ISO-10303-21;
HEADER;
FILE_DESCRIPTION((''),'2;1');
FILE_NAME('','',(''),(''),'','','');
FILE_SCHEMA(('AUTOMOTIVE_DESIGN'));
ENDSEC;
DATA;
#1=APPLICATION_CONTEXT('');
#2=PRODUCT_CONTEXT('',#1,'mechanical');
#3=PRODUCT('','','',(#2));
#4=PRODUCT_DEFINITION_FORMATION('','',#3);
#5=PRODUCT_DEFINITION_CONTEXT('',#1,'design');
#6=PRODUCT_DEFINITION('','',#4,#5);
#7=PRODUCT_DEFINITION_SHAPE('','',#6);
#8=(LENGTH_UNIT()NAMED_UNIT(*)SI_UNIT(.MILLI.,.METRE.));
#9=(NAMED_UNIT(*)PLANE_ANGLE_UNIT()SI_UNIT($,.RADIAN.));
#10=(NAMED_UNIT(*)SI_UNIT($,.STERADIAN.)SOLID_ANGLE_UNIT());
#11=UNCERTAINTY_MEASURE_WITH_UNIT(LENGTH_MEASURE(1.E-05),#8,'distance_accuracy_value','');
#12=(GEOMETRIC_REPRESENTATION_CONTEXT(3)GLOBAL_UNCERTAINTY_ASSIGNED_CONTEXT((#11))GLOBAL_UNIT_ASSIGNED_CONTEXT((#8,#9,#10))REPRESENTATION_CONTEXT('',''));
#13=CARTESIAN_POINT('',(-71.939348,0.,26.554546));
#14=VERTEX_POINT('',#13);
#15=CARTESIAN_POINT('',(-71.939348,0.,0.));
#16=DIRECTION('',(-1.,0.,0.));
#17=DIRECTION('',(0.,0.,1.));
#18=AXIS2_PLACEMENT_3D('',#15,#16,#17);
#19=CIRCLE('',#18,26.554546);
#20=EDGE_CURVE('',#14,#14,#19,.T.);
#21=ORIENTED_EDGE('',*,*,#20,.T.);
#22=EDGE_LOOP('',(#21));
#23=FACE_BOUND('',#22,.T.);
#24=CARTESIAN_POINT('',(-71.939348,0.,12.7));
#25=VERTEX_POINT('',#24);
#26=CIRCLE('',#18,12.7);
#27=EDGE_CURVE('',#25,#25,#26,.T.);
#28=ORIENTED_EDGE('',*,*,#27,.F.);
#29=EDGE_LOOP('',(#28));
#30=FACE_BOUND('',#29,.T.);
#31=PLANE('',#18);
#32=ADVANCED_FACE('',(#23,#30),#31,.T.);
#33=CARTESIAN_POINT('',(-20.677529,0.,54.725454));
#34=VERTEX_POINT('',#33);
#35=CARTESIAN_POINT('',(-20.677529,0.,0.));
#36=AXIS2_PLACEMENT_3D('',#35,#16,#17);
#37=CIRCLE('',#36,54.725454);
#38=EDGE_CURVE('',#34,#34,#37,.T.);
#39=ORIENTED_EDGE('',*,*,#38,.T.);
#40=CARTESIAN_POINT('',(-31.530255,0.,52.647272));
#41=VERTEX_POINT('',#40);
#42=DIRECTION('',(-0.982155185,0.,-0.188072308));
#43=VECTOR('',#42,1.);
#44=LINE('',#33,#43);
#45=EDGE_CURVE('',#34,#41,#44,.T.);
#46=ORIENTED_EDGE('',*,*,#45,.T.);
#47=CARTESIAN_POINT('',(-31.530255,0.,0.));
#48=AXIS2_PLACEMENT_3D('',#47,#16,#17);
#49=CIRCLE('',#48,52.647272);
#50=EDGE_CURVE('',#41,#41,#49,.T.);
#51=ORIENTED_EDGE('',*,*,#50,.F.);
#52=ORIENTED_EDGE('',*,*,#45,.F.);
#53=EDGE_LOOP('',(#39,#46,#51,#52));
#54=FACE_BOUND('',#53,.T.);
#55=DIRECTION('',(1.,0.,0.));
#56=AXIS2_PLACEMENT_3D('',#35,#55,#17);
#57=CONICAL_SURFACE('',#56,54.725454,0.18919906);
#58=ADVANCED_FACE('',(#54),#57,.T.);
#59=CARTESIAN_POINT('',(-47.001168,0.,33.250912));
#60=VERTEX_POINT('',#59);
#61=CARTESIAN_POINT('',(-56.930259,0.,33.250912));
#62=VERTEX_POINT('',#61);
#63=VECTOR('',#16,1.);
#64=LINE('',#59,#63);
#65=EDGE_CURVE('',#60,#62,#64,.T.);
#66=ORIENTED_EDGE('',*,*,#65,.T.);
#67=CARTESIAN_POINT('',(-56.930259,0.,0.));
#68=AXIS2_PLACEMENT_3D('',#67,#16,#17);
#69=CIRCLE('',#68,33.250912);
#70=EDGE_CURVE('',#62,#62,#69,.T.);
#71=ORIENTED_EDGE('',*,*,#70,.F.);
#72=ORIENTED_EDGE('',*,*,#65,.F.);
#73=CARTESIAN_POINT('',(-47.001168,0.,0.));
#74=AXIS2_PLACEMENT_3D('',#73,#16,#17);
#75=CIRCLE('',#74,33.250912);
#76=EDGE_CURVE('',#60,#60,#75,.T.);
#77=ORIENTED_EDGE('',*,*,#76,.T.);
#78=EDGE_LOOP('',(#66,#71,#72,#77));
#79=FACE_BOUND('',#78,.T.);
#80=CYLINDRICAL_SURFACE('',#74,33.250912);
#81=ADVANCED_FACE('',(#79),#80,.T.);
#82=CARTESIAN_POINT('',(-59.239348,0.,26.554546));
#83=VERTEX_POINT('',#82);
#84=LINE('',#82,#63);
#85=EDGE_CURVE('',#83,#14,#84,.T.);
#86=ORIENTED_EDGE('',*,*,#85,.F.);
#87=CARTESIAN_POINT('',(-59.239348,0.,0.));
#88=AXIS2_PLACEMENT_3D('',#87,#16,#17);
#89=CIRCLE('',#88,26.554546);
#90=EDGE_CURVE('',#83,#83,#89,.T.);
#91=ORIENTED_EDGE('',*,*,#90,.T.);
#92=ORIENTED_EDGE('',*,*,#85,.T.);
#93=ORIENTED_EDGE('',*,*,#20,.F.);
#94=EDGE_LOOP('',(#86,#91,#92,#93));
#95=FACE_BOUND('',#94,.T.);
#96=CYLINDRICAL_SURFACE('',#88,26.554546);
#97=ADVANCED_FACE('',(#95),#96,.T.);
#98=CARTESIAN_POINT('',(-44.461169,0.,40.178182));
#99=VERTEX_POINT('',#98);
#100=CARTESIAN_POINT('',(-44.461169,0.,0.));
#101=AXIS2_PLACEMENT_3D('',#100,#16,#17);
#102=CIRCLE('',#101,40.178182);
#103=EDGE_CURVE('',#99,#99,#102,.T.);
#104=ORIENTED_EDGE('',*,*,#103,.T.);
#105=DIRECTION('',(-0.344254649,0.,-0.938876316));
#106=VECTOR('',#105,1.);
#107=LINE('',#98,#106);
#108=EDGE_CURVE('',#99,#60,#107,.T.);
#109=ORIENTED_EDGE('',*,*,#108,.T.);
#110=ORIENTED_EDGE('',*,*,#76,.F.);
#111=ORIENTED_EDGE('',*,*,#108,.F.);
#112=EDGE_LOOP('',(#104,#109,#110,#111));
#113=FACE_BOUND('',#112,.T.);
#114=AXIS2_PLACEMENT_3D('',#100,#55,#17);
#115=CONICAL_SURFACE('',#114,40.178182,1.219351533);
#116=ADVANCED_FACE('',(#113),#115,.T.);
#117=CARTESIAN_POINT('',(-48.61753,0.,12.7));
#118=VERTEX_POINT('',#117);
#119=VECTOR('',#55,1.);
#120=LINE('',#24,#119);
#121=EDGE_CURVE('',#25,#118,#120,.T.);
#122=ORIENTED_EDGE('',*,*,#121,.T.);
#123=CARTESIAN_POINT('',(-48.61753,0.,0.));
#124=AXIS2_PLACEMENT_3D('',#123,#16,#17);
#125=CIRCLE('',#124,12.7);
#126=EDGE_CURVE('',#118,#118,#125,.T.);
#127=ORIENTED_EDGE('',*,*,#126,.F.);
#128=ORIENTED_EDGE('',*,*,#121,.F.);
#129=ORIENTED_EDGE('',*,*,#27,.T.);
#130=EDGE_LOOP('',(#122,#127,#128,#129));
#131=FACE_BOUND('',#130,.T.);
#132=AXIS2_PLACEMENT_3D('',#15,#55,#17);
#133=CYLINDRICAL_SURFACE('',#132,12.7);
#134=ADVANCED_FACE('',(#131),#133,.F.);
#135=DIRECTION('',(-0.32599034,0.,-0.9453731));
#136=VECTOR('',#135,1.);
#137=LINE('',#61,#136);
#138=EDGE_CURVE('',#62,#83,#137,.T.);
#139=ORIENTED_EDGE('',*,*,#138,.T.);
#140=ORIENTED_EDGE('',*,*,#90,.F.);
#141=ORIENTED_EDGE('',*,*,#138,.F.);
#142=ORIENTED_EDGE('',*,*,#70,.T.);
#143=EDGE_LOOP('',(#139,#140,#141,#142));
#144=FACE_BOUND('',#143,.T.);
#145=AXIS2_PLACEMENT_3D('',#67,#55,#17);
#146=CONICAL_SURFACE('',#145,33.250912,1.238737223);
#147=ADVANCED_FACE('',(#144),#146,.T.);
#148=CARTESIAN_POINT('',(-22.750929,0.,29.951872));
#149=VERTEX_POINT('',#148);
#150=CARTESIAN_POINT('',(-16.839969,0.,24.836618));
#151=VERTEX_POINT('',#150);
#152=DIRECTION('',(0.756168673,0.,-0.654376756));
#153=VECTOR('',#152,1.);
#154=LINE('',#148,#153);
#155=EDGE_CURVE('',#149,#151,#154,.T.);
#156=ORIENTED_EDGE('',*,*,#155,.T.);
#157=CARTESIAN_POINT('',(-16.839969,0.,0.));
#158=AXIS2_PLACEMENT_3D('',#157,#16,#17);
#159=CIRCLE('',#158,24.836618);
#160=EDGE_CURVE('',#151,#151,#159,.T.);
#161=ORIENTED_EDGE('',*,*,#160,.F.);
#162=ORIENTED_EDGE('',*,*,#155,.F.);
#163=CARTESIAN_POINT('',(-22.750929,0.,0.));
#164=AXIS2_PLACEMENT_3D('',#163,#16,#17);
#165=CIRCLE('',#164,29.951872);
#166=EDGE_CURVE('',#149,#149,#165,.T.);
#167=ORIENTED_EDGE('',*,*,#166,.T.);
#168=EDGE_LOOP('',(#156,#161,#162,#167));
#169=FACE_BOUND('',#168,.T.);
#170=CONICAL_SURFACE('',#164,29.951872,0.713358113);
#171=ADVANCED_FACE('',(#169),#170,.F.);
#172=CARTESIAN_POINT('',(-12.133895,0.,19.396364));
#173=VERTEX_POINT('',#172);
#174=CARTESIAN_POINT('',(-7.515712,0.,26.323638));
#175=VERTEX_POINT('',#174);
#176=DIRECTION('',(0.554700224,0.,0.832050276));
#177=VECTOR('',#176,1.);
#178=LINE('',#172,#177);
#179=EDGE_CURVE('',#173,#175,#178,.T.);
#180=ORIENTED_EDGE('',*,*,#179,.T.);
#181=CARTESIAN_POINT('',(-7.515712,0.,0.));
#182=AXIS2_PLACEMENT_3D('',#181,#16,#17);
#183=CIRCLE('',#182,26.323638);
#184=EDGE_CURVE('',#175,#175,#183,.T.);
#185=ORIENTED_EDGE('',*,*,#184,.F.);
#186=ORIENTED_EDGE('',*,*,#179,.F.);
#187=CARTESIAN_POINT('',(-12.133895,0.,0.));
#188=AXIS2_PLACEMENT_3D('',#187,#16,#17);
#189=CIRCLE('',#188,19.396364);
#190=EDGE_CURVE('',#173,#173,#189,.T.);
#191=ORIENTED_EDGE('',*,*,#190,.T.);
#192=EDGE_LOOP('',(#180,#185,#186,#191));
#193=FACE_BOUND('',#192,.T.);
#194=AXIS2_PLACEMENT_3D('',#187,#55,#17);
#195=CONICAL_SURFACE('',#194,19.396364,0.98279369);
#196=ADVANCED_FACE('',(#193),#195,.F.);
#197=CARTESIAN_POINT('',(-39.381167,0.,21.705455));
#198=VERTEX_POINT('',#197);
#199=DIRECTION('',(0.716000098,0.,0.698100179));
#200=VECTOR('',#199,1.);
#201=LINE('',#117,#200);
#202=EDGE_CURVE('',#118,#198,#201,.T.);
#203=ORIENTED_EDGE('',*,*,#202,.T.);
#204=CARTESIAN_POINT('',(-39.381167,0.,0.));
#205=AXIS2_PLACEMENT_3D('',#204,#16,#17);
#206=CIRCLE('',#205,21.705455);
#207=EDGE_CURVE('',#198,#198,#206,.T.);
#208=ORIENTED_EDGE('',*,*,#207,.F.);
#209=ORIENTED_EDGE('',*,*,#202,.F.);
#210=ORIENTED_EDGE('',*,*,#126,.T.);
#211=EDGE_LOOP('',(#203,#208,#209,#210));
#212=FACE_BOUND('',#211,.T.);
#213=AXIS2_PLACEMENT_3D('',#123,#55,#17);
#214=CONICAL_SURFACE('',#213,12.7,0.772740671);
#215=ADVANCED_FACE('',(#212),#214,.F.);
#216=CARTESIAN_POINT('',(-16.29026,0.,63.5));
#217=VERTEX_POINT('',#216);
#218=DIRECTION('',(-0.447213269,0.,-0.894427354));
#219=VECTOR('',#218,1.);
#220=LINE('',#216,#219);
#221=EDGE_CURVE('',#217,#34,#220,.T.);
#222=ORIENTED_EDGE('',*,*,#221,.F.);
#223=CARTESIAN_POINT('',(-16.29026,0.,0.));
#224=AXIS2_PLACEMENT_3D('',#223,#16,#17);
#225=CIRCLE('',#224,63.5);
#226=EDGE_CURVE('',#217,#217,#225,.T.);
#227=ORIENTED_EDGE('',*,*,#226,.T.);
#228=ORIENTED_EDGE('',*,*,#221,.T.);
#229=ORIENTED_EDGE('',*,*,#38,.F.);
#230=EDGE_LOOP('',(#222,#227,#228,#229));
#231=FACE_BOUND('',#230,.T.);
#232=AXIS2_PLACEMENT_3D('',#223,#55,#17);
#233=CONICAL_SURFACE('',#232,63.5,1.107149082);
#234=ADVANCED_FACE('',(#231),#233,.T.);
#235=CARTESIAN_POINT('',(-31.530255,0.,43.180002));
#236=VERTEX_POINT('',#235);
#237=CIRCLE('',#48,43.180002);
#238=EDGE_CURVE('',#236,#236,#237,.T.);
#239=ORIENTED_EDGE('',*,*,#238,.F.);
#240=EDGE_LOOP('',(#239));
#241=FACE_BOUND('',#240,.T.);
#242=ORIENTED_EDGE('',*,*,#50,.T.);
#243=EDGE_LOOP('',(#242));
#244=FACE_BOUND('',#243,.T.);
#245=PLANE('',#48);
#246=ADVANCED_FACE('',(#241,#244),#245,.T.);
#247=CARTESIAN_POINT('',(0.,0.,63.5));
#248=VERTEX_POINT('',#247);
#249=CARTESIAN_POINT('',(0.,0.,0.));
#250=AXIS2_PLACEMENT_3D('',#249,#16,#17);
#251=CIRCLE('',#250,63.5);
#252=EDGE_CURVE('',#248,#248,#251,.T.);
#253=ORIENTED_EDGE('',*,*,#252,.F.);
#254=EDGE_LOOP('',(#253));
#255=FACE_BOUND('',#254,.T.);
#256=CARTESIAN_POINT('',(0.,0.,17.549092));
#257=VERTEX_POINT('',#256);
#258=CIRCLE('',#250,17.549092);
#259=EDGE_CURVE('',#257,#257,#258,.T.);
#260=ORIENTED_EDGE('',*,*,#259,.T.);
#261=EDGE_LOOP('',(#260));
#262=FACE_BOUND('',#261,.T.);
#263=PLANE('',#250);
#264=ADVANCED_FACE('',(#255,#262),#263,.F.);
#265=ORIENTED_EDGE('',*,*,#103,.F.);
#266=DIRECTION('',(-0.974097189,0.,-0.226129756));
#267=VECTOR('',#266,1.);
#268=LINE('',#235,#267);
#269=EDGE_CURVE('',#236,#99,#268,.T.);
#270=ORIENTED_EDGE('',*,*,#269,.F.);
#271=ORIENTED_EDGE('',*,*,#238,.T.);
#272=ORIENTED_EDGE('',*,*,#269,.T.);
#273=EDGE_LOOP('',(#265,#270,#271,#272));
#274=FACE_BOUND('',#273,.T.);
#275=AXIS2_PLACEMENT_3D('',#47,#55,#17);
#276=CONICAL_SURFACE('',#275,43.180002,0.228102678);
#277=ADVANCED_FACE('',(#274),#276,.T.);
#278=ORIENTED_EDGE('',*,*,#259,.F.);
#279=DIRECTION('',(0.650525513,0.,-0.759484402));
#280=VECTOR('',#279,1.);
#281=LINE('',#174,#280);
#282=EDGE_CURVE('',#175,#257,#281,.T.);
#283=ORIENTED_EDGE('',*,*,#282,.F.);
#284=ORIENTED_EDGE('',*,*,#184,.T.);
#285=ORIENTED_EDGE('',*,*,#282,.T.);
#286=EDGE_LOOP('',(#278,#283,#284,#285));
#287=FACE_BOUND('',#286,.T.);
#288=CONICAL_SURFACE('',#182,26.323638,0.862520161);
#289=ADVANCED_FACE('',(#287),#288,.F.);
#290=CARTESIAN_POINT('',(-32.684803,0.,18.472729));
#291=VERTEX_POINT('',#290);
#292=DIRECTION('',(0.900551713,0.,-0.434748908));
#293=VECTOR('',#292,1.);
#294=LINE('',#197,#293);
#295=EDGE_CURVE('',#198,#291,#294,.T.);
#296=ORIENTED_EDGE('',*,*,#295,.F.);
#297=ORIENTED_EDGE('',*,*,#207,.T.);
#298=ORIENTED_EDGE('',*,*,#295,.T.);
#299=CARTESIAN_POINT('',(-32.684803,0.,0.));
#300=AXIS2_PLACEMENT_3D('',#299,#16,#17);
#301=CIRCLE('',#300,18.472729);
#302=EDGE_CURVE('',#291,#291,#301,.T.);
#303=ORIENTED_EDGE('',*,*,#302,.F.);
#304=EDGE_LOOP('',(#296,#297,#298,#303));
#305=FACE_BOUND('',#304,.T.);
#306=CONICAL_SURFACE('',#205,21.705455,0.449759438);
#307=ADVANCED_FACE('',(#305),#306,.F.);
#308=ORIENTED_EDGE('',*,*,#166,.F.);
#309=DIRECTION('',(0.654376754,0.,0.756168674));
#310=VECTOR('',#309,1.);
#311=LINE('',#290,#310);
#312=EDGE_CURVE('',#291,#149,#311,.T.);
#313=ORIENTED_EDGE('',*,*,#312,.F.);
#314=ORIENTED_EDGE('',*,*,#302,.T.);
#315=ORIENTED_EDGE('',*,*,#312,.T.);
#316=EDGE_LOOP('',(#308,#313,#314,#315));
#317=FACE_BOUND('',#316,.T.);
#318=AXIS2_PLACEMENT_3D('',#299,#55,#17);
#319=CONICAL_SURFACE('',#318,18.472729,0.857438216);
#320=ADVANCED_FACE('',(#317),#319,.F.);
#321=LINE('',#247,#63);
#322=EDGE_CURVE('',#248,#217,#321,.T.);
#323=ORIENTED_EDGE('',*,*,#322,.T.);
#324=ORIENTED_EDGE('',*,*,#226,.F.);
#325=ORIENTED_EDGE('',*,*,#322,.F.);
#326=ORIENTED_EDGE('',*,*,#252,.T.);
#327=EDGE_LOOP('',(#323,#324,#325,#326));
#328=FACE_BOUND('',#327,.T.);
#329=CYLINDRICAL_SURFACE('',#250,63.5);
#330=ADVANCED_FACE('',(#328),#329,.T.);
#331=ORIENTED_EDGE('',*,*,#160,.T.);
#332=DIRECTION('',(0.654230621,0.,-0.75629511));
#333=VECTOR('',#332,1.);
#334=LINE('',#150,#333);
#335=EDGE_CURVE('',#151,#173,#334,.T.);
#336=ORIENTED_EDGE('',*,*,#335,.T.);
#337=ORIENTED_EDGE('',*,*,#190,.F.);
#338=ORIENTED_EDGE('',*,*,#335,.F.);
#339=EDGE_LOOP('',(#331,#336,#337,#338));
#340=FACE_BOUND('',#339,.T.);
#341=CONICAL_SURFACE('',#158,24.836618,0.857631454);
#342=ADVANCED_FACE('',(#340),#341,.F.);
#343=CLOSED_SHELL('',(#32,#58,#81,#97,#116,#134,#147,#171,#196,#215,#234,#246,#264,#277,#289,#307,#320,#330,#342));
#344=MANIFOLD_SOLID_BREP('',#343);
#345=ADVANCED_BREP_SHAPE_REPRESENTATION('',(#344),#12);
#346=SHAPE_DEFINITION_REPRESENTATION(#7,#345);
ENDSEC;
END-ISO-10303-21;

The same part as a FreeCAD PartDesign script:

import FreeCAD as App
import Part
import Sketcher

V = App.Vector
Q = App.Units.Quantity

doc = App.newDocument("Part")
body = doc.addObject("PartDesign::Body", "Body")

# Sketch on XZ plane
sketch1 = body.newObject("Sketcher::SketchObject", "Sketch")
sketch1.AttachmentSupport = (doc.getObject("XZ_Plane"), [""])
sketch1.MapMode = "FlatFace"
sketch1.addGeometry([
    Part.LineSegment(V(-8, 26, 0), V(0, 18, 0)),  # 0
    Part.LineSegment(V(0, 18, 0), V(0, 64, 0)),  # 1
    Part.LineSegment(V(0, 64, 0), V(-16, 64, 0)),  # 2
    Part.LineSegment(V(-16, 64, 0), V(-21, 55, 0)),  # 3
    Part.LineSegment(V(-21, 55, 0), V(-32, 53, 0)),  # 4
    Part.LineSegment(V(-32, 53, 0), V(-32, 43, 0)),  # 5
    Part.LineSegment(V(-32, 43, 0), V(-44, 40, 0)),  # 6
    Part.LineSegment(V(-44, 40, 0), V(-47, 33, 0)),  # 7
    Part.LineSegment(V(-47, 33, 0), V(-57, 33, 0)),  # 8
    Part.LineSegment(V(-57, 33, 0), V(-59, 27, 0)),  # 9
    Part.LineSegment(V(-59, 27, 0), V(-72, 27, 0)),  # 10
    Part.LineSegment(V(-72, 27, 0), V(-72, 13, 0)),  # 11
    Part.LineSegment(V(-72, 13, 0), V(-49, 13, 0)),  # 12
    Part.LineSegment(V(-49, 13, 0), V(-39, 22, 0)),  # 13
    Part.LineSegment(V(-39, 22, 0), V(-33, 18, 0)),  # 14
    Part.LineSegment(V(-33, 18, 0), V(-23, 30, 0)),  # 15
    Part.LineSegment(V(-23, 30, 0), V(-17, 25, 0)),  # 16
    Part.LineSegment(V(-17, 25, 0), V(-12, 19, 0)),  # 17
    Part.LineSegment(V(-12, 19, 0), V(-8, 26, 0)),  # 18
], False)
sketch1.addConstraint([
    Sketcher.Constraint("Coincident", 0, 2, 1, 1),
    Sketcher.Constraint("Coincident", 1, 2, 2, 1),
    Sketcher.Constraint("Coincident", 2, 2, 3, 1),
    Sketcher.Constraint("Coincident", 3, 2, 4, 1),
    Sketcher.Constraint("Coincident", 4, 2, 5, 1),
    Sketcher.Constraint("Coincident", 5, 2, 6, 1),
    Sketcher.Constraint("Coincident", 6, 2, 7, 1),
    Sketcher.Constraint("Coincident", 7, 2, 8, 1),
    Sketcher.Constraint("Coincident", 8, 2, 9, 1),
    Sketcher.Constraint("Coincident", 9, 2, 10, 1),
    Sketcher.Constraint("Coincident", 10, 2, 11, 1),
    Sketcher.Constraint("Coincident", 11, 2, 12, 1),
    Sketcher.Constraint("Coincident", 12, 2, 13, 1),
    Sketcher.Constraint("Coincident", 13, 2, 14, 1),
    Sketcher.Constraint("Coincident", 14, 2, 15, 1),
    Sketcher.Constraint("Coincident", 15, 2, 16, 1),
    Sketcher.Constraint("Coincident", 16, 2, 17, 1),
    Sketcher.Constraint("Coincident", 17, 2, 18, 1),
    Sketcher.Constraint("Coincident", 18, 2, 0, 1),
    Sketcher.Constraint("Vertical", 1),
    Sketcher.Constraint("Horizontal", 2),
    Sketcher.Constraint("Vertical", 5),
    Sketcher.Constraint("Horizontal", 8),
    Sketcher.Constraint("Horizontal", 10),
    Sketcher.Constraint("Vertical", 11),
    Sketcher.Constraint("Horizontal", 12),
    Sketcher.Constraint("PointOnObject", 0, 2, -2),
    Sketcher.Constraint("Perpendicular", 15, 16),
    Sketcher.Constraint("DistanceX", 10, 2, 10, 1, Q("0.5 in")),
    Sketcher.Constraint("DistanceX", 8, 2, 5, 2, Q("1.0000002 in")),
    Sketcher.Constraint("DistanceY", -1, 1, 1, 2, Q("2.5 in")),
    Sketcher.Constraint("DistanceY", -1, 1, 5, 2, Q("1.7000001 in")),
    Sketcher.Constraint("DistanceY", -1, 1, 11, 2, Q("0.5 in")),
    Sketcher.Constraint("DistanceX", 4, 2, 2, 2, Q("0.5999998 in")),
    Sketcher.Constraint("DistanceX", 7, 2, 6, 2, Q("0.1 in")),
    Sketcher.Constraint("DistanceX", 7, 2, 13, 2, Q("0.3 in")),
    Sketcher.Constraint("DistanceX", 2, 2, 2, 1, Q("16.29026 mm")),
    Sketcher.Constraint("DistanceX", 8, 2, 8, 1, Q("9.929091 mm")),
    Sketcher.Constraint("DistanceY", 5, 2, 5, 1, Q("9.46727 mm")),
    Sketcher.Constraint("DistanceY", 15, 2, 4, 2, Q("22.6954 mm")),
    Sketcher.Constraint("Distance", 3, Q("9.810239 mm")),
    Sketcher.Constraint("Distance", 4, Q("11.04991 mm")),
    Sketcher.Constraint("DistanceX", 12, 1, 12, 2, Q("23.321818 mm")),
    Sketcher.Constraint("DistanceY", 1, 1, 1, 2, Q("45.950908 mm")),
    Sketcher.Constraint("DistanceY", 11, 2, 11, 1, Q("13.854546 mm")),
    Sketcher.Constraint("DistanceX", 12, 2, -1, 1, Q("48.61753 mm")),
    Sketcher.Constraint("DistanceY", -1, 1, 14, 2, Q("18.472729 mm")),
    Sketcher.Constraint("DistanceX", 15, 2, -1, 1, Q("22.750929 mm")),
    Sketcher.Constraint("DistanceX", 16, 2, -1, 1, Q("16.839969 mm")),
    Sketcher.Constraint("DistanceY", -1, 1, 16, 2, Q("24.836618 mm")),
    Sketcher.Constraint("DistanceX", 18, 2, -1, 1, Q("7.515712 mm")),
    Sketcher.Constraint("DistanceY", 6, 2, 5, 2, Q("3.00182 mm")),
    Sketcher.Constraint("DistanceY", 7, 2, 6, 2, Q("6.92727 mm")),
    Sketcher.Constraint("DistanceY", 13, 2, 9, 2, Q("4.849091 mm")),
    Sketcher.Constraint("DistanceY", 0, 2, 17, 2, Q("1.847272 mm")),
    Sketcher.Constraint("DistanceX", 14, 2, 17, 2, Q("20.550908 mm")),
    Sketcher.Constraint("DistanceY", 16, 2, 18, 2, Q("1.48702 mm")),
])
revolution = body.newObject("PartDesign::Revolution", "Revolution")
revolution.Profile = sketch1
revolution.ReferenceAxis = (sketch1, ["H_Axis"])
revolution.Angle = 360

doc.recompute()
